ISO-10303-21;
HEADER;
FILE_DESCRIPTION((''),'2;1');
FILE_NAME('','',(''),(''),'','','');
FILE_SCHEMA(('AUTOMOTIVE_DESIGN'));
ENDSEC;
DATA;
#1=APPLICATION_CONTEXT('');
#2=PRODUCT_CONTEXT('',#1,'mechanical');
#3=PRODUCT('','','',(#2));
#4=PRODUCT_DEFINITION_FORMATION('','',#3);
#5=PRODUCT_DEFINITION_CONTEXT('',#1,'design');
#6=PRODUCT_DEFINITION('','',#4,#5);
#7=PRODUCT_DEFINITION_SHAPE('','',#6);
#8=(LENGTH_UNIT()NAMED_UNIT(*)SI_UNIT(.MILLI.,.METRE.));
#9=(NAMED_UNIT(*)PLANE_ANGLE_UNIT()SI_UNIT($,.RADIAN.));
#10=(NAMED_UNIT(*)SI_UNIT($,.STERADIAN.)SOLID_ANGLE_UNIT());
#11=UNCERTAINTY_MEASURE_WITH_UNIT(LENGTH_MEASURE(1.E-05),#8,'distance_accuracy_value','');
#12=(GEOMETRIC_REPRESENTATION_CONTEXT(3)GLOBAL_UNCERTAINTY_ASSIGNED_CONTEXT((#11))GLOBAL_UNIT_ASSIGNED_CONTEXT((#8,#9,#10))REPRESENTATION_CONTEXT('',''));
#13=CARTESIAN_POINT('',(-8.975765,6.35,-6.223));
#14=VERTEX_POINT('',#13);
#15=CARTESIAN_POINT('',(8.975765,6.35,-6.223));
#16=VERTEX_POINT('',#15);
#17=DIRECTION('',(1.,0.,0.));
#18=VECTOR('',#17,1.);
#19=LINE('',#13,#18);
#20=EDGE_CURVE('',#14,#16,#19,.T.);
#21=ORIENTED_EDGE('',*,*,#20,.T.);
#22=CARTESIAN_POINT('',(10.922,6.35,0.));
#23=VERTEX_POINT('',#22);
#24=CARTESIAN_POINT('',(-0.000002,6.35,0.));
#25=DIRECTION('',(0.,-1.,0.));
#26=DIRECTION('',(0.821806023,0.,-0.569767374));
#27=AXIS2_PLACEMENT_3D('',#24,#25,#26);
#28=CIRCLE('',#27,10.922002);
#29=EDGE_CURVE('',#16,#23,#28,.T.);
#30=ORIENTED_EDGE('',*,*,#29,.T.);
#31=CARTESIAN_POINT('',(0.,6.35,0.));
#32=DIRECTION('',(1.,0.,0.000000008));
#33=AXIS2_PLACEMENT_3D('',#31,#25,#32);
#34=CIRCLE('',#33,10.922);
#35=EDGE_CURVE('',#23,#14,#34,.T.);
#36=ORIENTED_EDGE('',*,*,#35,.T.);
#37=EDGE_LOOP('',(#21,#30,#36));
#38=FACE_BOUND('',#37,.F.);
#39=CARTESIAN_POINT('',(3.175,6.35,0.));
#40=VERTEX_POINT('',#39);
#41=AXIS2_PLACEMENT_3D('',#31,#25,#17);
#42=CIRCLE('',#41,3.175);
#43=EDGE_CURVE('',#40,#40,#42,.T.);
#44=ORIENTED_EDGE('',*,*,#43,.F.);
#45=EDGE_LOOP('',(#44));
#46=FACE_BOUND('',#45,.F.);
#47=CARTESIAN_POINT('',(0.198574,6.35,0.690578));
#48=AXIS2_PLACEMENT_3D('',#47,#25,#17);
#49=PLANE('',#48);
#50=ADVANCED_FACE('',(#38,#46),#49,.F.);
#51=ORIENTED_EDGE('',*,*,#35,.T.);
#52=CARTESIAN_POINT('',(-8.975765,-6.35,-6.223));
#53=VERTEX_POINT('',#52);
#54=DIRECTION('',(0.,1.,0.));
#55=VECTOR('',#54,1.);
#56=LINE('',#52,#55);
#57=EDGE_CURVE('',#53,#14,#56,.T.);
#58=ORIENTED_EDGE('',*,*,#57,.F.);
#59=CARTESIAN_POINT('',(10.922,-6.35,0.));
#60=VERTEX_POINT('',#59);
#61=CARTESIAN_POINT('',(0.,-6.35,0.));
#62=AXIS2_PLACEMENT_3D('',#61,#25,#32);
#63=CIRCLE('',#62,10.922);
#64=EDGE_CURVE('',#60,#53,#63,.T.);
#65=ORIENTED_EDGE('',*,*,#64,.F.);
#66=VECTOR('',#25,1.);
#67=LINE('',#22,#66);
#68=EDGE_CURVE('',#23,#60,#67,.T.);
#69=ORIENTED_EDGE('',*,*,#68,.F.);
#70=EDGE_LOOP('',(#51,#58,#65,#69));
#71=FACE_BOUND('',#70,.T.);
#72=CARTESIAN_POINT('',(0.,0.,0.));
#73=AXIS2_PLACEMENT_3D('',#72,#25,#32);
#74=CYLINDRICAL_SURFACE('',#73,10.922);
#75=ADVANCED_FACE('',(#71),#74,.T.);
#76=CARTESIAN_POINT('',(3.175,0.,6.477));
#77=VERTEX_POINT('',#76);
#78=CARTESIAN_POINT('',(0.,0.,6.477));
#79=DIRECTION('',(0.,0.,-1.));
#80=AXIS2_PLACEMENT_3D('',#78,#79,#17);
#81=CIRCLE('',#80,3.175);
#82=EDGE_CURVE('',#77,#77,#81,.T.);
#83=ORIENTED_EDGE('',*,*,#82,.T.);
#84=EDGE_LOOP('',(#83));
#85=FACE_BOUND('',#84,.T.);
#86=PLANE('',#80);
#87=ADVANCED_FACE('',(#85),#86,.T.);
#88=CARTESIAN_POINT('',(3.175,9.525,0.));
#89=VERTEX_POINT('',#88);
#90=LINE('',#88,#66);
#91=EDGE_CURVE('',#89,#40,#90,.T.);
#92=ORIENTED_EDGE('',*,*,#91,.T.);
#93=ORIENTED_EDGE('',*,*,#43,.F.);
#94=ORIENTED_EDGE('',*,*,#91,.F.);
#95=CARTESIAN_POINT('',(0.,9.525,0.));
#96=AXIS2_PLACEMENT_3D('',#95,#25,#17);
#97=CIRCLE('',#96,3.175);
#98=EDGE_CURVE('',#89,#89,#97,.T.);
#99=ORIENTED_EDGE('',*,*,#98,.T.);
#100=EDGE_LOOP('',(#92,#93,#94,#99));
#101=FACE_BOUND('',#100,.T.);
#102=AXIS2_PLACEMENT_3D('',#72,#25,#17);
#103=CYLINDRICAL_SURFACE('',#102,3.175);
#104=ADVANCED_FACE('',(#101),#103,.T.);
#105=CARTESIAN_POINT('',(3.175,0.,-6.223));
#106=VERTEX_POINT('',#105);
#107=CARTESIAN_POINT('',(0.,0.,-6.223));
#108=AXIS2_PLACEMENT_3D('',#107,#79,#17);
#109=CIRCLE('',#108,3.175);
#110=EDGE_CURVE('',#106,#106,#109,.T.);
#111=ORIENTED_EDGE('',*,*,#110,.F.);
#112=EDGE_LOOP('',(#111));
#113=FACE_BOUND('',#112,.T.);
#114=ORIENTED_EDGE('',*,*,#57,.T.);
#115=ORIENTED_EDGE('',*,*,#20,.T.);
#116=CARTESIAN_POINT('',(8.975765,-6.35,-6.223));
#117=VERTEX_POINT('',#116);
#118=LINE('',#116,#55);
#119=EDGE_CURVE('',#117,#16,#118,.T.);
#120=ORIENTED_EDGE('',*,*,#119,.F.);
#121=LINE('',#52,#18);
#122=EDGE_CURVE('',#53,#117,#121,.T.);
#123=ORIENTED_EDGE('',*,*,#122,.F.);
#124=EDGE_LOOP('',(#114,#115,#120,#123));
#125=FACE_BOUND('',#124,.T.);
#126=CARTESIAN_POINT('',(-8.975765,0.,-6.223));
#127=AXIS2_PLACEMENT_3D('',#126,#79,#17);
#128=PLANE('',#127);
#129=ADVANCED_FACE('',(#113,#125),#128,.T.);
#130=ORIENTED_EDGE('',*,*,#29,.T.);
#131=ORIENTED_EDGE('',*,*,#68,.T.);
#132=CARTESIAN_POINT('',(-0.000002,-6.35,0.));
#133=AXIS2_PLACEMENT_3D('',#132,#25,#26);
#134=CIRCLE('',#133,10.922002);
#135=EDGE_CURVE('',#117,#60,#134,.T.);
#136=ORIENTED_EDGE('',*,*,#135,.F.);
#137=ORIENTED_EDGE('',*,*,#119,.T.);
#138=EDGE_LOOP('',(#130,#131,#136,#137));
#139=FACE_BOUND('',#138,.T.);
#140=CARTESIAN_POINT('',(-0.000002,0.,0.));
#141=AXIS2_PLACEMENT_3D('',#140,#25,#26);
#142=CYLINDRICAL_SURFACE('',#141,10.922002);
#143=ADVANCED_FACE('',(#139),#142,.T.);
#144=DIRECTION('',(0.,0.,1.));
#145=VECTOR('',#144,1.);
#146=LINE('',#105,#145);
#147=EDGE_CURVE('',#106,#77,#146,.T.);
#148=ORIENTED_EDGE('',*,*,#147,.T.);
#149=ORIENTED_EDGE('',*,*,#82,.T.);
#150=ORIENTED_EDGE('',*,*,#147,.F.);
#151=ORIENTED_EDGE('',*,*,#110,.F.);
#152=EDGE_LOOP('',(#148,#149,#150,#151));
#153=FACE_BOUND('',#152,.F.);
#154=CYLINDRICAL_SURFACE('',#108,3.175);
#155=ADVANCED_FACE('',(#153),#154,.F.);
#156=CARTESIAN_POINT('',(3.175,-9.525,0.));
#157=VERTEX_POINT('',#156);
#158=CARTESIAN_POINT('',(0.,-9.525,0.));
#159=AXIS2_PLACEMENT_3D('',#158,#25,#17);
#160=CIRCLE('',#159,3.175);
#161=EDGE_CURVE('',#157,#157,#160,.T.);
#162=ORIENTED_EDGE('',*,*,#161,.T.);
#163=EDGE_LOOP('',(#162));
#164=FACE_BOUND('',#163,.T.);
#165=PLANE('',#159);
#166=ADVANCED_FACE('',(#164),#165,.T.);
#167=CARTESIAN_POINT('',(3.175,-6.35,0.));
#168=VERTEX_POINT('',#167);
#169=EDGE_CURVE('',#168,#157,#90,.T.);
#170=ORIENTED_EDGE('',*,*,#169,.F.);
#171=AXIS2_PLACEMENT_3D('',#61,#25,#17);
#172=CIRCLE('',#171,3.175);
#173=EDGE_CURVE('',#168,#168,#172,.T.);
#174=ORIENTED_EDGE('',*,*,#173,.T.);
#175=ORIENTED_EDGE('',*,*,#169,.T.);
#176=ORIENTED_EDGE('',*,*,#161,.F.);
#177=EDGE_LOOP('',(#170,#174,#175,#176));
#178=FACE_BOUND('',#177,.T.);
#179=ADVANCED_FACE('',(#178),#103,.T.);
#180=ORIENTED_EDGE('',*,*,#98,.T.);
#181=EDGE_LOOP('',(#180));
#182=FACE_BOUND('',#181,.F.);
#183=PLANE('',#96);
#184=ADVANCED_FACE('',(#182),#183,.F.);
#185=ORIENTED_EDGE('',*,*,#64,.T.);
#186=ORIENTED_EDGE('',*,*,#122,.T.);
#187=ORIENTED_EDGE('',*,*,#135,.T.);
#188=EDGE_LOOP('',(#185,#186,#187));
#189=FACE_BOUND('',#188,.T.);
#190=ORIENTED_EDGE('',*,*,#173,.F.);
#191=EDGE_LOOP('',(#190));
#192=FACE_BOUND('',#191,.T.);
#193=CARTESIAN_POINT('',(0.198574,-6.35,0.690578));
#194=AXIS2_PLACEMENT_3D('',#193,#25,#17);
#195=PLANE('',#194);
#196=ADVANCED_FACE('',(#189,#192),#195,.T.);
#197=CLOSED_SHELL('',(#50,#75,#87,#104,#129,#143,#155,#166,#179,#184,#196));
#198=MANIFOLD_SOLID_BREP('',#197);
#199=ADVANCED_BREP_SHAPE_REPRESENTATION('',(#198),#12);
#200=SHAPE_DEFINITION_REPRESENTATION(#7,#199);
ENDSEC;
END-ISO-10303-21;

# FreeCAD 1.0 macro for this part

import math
import FreeCAD as App
import Part
import Sketcher

V = App.Vector
Q = App.Units.Quantity

doc = App.newDocument("Part")
body = doc.addObject("PartDesign::Body", "Body")

# Sketch on XZ plane
sketch1 = body.newObject("Sketcher::SketchObject", "Sketch")
sketch1.AttachmentSupport = (doc.getObject("XZ_Plane"), [""])
sketch1.MapMode = "FlatFace"
sketch1.addGeometry(Part.ArcOfCircle(Part.Circle(V(0, 0, 0), V(0, 0, 1), 10.9), math.radians(-35), math.radians(0)), False)
sketch1.addGeometry(Part.ArcOfCircle(Part.Circle(V(0, 0, 0), V(0, 0, 1), 10.9), math.radians(0), math.radians(215)), False)
sketch1.addGeometry(Part.LineSegment(V(-9, -6.2, 0), V(9, -6.2, 0)), False)
sketch1.addGeometry(Part.Circle(V(0, 0, 0), V(0, 0, 1), 3.2), False)
sketch1.addConstraint(Sketcher.Constraint("Tangent", 0, 2, 1, 1))
sketch1.addConstraint(Sketcher.Constraint("Coincident", 1, 2, 2, 1))
sketch1.addConstraint(Sketcher.Constraint("Coincident", 2, 2, 0, 1))
sketch1.addConstraint(Sketcher.Constraint("Horizontal", 2))
sketch1.addConstraint(Sketcher.Constraint("Coincident", 0, 3, -1, 1))
sketch1.addConstraint(Sketcher.Constraint("Coincident", 3, 3, -1, 1))
sketch1.addConstraint(Sketcher.Constraint("PointOnObject", 0, 2, -1))
sketch1.addConstraint(Sketcher.Constraint("Diameter", 3, Q("0.25 in")))
sketch1.addConstraint(Sketcher.Constraint("Radius", 0, Q("0.4300001 in")))
sketch1.addConstraint(Sketcher.Constraint("Radius", 1, Q("0.43 in")))
sketch1.addConstraint(Sketcher.Constraint("DistanceY", 1, 2, -1, 1, Q("0.245 in")))
pad1 = body.newObject("PartDesign::Pad", "Pad")
pad1.Profile = sketch1
pad1.Length = Q("0.5 in")
pad1.Midplane = True

# Sketch on XZ plane
sketch2 = body.newObject("Sketcher::SketchObject", "Sketch001")
sketch2.AttachmentSupport = (doc.getObject("XZ_Plane"), [""])
sketch2.MapMode = "FlatFace"
sketch2.addGeometry(Part.Circle(V(0, 0, 0), V(0, 0, 1), 3.2), False)
sketch2.addConstraint(Sketcher.Constraint("Coincident", 0, 3, -1, 1))
sketch2.addConstraint(Sketcher.Constraint("Diameter", 0, Q("0.25 in")))
pad2 = body.newObject("PartDesign::Pad", "Pad001")
pad2.Profile = sketch2
pad2.Length = Q("0.75 in")
pad2.Midplane = True

# Sketch on XY plane
sketch3 = body.newObject("Sketcher::SketchObject", "Sketch002")
sketch3.AttachmentSupport = (doc.getObject("XY_Plane"), [""])
sketch3.MapMode = "FlatFace"
sketch3.AttachmentOffset = App.Placement(V(0, 0, -0.245 * 25.4), App.Rotation())
sketch3.addGeometry(Part.Circle(V(0, 0, 0), V(0, 0, 1), 3.2), False)
sketch3.addConstraint(Sketcher.Constraint("Coincident", 0, 3, -1, 1))
sketch3.addConstraint(Sketcher.Constraint("Diameter", 0, Q("0.25 in")))
pocket1 = body.newObject("PartDesign::Pocket", "Pocket")
pocket1.Profile = sketch3
pocket1.Length = Q("0.5 in")
pocket1.Reversed = True

doc.recompute()
